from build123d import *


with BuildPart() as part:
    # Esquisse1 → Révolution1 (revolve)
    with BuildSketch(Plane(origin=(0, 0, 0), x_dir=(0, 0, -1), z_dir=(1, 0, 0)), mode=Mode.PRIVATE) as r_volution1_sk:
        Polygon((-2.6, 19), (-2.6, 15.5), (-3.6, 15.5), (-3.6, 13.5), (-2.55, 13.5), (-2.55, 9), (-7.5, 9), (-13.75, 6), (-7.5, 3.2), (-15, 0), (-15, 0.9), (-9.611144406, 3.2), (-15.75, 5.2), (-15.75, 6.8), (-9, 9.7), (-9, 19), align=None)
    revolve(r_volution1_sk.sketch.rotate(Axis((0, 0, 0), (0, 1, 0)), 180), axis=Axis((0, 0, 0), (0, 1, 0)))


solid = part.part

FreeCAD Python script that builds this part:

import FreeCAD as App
import Part
import Sketcher
Q = App.Units.Quantity


def add_polygon(sketch, points):
    """Adds a closed chain of lines whose ends are joined by coincident constraints."""
    first, n = sketch.GeometryCount, len(points)
    for a, b in zip(points, points[1:] + points[:1]):
        sketch.addGeometry(Part.LineSegment(App.Vector(*a, 0), App.Vector(*b, 0)), False)
    for i in range(n):
        sketch.addConstraint(Sketcher.Constraint("Coincident", first + i, 2, first + (i + 1) % n, 1))

doc = App.newDocument("Part")
body = doc.addObject("PartDesign::Body", "Body")

sketch1 = body.newObject("Sketcher::SketchObject", "Sketch")
sketch1.AttachmentSupport = (doc.getObject("YZ_Plane"), [""])
sketch1.MapMode = "FlatFace"
add_polygon(sketch1, [(15.5, 2.6), (19, 2.6), (19, 9), (9.7, 9), (6.8, 15.8), (5.2, 15.8), (3.2, 9.6), (0.9, 15), (0, 15), (3.2, 7.5), (6, 13.8), (9, 7.5), (9, 2.5), (13.5, 2.5), (13.5, 3.6), (15.5, 3.6)])
sketch1.addConstraint([
    Sketcher.Constraint("Horizontal", 0),
    Sketcher.Constraint("Vertical", 1),
    Sketcher.Constraint("Horizontal", 2),
    Sketcher.Constraint("Horizontal", 4),
    Sketcher.Constraint("Horizontal", 7),
    Sketcher.Constraint("Vertical", 11),
    Sketcher.Constraint("Horizontal", 12),
    Sketcher.Constraint("Vertical", 13),
    Sketcher.Constraint("Horizontal", 14),
    Sketcher.Constraint("Vertical", 15),
    Sketcher.Constraint("PointOnObject", 7, 2, -2),
    Sketcher.Constraint("Horizontal", 8, 2, 10, 2),
    Sketcher.Constraint("Vertical", 5, 2, 8, 2),
    Sketcher.Constraint("DistanceX", 14, 1, 14, 2, Q("2 mm")),
    Sketcher.Constraint("DistanceY", 15, 2, 15, 1, Q("1 mm")),
    Sketcher.Constraint("DistanceX", 0, 1, 0, 2, Q("3.5 mm")),
    Sketcher.Constraint("DistanceX", 2, 2, 2, 1, Q("9.3 mm")),
    Sketcher.Constraint("DistanceX", 4, 2, 4, 1, Q("1.6 mm")),
    Sketcher.Constraint("DistanceX", 7, 2, 7, 1, Q("0.9 mm")),
    Sketcher.Constraint("DistanceX", 12, 1, 12, 2, Q("4.5 mm")),
    Sketcher.Constraint("DistanceY", 1, 1, 1, 2, Q("6.4 mm")),
    Sketcher.Constraint("DistanceX", -1, 1, 0, 2, Q("19 mm")),
    Sketcher.Constraint("DistanceY", -1, 1, 1, 2, Q("9 mm")),
    Sketcher.Constraint("DistanceY", -1, 1, 6, 2, Q("15 mm")),
    Sketcher.Constraint("DistanceX", -1, 1, 9, 2, Q("6 mm")),
    Sketcher.Constraint("DistanceX", 5, 2, 4, 2, Q("2 mm")),
    Sketcher.Constraint("DistanceY", 9, 2, 3, 2, Q("2 mm")),
    Sketcher.Constraint("DistanceY", 11, 2, 11, 1, Q("4.95 mm")),
    Sketcher.Constraint("DistanceY", 13, 1, 13, 2, Q("1.05 mm")),
    Sketcher.Constraint("DistanceX", -1, 1, 3, 2, Q("6.8 mm")),
    Sketcher.Constraint("DistanceY", -1, 1, 3, 2, Q("15.75 mm")),
    Sketcher.Constraint("Distance", 6, Q("5.859161 mm")),
])
revolution = body.newObject("PartDesign::Revolution", "Revolution")
revolution.Profile = sketch1
revolution.ReferenceAxis = (sketch1, ["H_Axis"])
revolution.Angle = 360

doc.recompute()
